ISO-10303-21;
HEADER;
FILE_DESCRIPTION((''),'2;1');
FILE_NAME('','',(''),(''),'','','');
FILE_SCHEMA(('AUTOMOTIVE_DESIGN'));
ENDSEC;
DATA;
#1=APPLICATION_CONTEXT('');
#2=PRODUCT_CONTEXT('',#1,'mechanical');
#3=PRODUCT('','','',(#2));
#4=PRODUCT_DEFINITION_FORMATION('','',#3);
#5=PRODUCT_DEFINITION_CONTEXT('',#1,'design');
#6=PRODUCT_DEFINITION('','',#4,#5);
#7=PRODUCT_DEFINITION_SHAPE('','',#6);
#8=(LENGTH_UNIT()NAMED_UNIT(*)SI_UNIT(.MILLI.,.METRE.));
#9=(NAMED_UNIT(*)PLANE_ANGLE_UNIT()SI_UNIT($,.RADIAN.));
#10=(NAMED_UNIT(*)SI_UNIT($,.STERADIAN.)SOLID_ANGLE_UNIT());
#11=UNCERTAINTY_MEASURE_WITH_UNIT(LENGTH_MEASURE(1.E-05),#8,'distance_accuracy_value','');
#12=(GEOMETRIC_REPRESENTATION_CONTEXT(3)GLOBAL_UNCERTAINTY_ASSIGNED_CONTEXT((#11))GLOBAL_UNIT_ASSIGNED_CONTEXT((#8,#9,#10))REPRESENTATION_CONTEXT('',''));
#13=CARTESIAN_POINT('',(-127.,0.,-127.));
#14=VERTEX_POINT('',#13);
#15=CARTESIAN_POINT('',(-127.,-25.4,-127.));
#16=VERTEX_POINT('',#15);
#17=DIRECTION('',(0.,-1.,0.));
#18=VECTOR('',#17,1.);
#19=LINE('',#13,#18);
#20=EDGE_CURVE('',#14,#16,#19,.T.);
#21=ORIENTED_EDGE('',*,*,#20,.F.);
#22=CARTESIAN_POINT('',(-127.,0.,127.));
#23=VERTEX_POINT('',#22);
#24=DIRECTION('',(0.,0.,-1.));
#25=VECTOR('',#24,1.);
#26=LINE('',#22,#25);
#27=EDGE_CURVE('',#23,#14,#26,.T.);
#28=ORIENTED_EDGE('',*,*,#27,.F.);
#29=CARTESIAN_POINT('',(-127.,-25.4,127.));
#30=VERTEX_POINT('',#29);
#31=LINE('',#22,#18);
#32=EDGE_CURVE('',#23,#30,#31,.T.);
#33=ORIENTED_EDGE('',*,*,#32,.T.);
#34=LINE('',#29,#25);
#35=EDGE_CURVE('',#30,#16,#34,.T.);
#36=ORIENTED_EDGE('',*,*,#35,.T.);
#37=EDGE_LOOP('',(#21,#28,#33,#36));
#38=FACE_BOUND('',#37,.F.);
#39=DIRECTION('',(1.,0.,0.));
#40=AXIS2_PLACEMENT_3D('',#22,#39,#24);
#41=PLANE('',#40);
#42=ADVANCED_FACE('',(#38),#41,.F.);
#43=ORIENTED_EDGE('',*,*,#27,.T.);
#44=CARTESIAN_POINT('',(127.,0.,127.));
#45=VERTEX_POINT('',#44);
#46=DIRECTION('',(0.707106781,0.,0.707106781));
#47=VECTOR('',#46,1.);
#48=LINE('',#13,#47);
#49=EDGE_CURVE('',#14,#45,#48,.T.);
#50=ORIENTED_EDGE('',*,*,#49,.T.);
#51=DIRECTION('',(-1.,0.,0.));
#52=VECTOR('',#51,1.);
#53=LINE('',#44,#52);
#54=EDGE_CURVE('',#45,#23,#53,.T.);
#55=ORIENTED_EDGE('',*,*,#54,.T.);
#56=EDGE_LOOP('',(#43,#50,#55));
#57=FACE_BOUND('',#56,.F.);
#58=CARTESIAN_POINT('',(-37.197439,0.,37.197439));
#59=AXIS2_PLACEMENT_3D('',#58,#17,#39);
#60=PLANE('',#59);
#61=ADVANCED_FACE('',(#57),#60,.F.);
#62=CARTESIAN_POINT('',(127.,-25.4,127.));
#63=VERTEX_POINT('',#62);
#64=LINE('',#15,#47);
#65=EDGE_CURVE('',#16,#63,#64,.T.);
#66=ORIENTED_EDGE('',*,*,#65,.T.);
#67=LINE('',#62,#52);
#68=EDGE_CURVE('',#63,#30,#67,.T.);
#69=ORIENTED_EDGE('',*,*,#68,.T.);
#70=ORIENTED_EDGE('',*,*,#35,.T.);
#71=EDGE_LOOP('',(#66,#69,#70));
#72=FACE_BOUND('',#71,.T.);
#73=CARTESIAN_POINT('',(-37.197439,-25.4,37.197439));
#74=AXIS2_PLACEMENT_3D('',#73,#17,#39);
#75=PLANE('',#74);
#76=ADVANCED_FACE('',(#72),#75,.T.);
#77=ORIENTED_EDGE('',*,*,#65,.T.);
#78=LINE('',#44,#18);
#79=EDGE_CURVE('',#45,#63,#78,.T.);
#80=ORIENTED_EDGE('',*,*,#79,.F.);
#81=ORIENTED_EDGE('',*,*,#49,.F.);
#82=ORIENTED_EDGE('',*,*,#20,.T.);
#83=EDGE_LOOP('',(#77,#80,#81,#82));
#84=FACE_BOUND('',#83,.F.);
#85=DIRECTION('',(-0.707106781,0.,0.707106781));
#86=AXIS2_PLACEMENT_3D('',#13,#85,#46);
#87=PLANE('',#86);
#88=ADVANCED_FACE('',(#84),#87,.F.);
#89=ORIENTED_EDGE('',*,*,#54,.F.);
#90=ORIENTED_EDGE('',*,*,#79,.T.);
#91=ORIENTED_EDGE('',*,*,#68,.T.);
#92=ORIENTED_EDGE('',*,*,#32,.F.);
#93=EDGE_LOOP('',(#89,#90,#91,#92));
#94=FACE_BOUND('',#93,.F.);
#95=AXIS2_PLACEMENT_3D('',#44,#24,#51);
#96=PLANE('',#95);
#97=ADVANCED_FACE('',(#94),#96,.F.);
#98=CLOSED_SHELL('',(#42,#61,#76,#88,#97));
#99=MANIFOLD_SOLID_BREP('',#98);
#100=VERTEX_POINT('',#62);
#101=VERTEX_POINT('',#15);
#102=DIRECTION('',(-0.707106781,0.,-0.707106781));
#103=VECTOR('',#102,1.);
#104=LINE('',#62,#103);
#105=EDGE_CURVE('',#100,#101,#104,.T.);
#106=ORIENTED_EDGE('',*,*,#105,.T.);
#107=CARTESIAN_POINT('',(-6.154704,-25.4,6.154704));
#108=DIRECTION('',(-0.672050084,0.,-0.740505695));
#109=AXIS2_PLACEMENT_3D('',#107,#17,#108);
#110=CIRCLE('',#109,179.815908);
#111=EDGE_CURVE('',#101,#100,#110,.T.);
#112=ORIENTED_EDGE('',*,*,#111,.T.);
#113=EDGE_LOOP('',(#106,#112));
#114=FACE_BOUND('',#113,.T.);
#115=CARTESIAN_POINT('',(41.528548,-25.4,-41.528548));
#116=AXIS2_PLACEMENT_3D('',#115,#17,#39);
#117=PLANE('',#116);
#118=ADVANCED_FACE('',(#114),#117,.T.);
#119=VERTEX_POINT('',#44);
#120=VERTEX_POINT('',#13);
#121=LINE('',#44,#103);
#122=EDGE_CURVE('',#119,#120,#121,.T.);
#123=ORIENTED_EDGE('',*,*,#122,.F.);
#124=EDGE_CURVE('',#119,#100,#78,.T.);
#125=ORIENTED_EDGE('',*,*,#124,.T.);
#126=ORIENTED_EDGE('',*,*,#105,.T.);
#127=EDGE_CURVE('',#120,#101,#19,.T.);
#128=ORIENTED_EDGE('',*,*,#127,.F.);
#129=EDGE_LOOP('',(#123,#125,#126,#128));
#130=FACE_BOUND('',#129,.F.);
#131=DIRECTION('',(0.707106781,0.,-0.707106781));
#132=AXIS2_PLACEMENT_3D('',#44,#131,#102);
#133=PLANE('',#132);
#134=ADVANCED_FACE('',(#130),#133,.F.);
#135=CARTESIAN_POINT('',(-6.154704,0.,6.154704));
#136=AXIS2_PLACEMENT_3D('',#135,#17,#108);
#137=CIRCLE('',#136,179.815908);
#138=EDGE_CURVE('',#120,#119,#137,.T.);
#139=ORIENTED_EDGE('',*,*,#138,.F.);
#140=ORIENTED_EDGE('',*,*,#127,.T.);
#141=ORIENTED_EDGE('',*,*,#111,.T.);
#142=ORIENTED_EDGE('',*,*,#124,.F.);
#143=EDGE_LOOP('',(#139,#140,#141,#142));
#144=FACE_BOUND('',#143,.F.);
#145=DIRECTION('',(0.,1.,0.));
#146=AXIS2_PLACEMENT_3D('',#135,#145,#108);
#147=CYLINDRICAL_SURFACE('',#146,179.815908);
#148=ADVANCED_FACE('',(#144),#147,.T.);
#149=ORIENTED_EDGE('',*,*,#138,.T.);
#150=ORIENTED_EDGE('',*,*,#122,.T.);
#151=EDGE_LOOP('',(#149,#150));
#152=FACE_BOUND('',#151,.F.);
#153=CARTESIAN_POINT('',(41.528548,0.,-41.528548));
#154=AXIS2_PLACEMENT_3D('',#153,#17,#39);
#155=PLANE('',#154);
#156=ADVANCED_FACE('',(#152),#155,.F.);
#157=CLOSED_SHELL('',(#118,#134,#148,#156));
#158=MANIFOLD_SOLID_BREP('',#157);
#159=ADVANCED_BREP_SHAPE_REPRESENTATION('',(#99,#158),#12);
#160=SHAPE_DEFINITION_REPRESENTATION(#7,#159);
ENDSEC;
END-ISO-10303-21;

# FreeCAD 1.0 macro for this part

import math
import FreeCAD as App
import Part
import Sketcher

V = App.Vector
Q = App.Units.Quantity


def add_polygon(sketch, points):
    """Adds a closed chain of lines whose ends are joined by coincident constraints."""
    first, n = sketch.GeometryCount, len(points)
    for a, b in zip(points, points[1:] + points[:1]):
        sketch.addGeometry(Part.LineSegment(App.Vector(*a, 0), App.Vector(*b, 0)), False)
    for i in range(n):
        sketch.addConstraint(Sketcher.Constraint("Coincident", first + i, 2, first + (i + 1) % n, 1))

doc = App.newDocument("Part")
body = doc.addObject("PartDesign::Body", "Body")

# Sketch on XZ plane
sketch1 = body.newObject("Sketcher::SketchObject", "Sketch")
sketch1.AttachmentSupport = (doc.getObject("XZ_Plane"), [""])
sketch1.MapMode = "FlatFace"
add_polygon(sketch1, [(-127, -127), (127, 127), (-127, 127)])  # lines 0-2
sketch1.addConstraint([
    Sketcher.Constraint("Horizontal", 1),
    Sketcher.Constraint("Vertical", 2),
    Sketcher.Constraint("Symmetric", 0, 2, 2, 2, -1, 1),
    Sketcher.Constraint("Equal", 1, 2),
    Sketcher.Constraint("DistanceX", 1, 2, 1, 1, Q("10 in")),
])
pad1 = body.newObject("PartDesign::Pad", "Pad")
pad1.Profile = sketch1
pad1.Length = Q("1 in")
body2 = doc.addObject("PartDesign::Body", "Body001")

# Sketch on XZ plane
sketch2 = body2.newObject("Sketcher::SketchObject", "Sketch001")
sketch2.AttachmentSupport = (doc.getObject("XZ_Plane001"), [""])
sketch2.MapMode = "FlatFace"
sketch2.addGeometry([
    Part.ArcOfCircle(Part.Circle(V(-6, 6, 0), V(0, 0, 1), 180), math.radians(-132), math.radians(42)),
    Part.LineSegment(V(127, 127, 0), V(-127, -127, 0)),
], False)
sketch2.addConstraint([
    Sketcher.Constraint("Coincident", 0, 1, 1, 2),
    Sketcher.Constraint("Coincident", 1, 1, 0, 2),
    Sketcher.Constraint("Symmetric", 0, 1, 1, 1, -1, 1),
    Sketcher.Constraint("DistanceX", 0, 1, -1, 1, Q("5 in")),
    Sketcher.Constraint("DistanceY", 0, 1, -1, 1, Q("5 in")),
    Sketcher.Constraint("Radius", 0, 179.815908),
])
pad2 = body2.newObject("PartDesign::Pad", "Pad001")
pad2.Profile = sketch2
pad2.Length = Q("1 in")

doc.recompute()
